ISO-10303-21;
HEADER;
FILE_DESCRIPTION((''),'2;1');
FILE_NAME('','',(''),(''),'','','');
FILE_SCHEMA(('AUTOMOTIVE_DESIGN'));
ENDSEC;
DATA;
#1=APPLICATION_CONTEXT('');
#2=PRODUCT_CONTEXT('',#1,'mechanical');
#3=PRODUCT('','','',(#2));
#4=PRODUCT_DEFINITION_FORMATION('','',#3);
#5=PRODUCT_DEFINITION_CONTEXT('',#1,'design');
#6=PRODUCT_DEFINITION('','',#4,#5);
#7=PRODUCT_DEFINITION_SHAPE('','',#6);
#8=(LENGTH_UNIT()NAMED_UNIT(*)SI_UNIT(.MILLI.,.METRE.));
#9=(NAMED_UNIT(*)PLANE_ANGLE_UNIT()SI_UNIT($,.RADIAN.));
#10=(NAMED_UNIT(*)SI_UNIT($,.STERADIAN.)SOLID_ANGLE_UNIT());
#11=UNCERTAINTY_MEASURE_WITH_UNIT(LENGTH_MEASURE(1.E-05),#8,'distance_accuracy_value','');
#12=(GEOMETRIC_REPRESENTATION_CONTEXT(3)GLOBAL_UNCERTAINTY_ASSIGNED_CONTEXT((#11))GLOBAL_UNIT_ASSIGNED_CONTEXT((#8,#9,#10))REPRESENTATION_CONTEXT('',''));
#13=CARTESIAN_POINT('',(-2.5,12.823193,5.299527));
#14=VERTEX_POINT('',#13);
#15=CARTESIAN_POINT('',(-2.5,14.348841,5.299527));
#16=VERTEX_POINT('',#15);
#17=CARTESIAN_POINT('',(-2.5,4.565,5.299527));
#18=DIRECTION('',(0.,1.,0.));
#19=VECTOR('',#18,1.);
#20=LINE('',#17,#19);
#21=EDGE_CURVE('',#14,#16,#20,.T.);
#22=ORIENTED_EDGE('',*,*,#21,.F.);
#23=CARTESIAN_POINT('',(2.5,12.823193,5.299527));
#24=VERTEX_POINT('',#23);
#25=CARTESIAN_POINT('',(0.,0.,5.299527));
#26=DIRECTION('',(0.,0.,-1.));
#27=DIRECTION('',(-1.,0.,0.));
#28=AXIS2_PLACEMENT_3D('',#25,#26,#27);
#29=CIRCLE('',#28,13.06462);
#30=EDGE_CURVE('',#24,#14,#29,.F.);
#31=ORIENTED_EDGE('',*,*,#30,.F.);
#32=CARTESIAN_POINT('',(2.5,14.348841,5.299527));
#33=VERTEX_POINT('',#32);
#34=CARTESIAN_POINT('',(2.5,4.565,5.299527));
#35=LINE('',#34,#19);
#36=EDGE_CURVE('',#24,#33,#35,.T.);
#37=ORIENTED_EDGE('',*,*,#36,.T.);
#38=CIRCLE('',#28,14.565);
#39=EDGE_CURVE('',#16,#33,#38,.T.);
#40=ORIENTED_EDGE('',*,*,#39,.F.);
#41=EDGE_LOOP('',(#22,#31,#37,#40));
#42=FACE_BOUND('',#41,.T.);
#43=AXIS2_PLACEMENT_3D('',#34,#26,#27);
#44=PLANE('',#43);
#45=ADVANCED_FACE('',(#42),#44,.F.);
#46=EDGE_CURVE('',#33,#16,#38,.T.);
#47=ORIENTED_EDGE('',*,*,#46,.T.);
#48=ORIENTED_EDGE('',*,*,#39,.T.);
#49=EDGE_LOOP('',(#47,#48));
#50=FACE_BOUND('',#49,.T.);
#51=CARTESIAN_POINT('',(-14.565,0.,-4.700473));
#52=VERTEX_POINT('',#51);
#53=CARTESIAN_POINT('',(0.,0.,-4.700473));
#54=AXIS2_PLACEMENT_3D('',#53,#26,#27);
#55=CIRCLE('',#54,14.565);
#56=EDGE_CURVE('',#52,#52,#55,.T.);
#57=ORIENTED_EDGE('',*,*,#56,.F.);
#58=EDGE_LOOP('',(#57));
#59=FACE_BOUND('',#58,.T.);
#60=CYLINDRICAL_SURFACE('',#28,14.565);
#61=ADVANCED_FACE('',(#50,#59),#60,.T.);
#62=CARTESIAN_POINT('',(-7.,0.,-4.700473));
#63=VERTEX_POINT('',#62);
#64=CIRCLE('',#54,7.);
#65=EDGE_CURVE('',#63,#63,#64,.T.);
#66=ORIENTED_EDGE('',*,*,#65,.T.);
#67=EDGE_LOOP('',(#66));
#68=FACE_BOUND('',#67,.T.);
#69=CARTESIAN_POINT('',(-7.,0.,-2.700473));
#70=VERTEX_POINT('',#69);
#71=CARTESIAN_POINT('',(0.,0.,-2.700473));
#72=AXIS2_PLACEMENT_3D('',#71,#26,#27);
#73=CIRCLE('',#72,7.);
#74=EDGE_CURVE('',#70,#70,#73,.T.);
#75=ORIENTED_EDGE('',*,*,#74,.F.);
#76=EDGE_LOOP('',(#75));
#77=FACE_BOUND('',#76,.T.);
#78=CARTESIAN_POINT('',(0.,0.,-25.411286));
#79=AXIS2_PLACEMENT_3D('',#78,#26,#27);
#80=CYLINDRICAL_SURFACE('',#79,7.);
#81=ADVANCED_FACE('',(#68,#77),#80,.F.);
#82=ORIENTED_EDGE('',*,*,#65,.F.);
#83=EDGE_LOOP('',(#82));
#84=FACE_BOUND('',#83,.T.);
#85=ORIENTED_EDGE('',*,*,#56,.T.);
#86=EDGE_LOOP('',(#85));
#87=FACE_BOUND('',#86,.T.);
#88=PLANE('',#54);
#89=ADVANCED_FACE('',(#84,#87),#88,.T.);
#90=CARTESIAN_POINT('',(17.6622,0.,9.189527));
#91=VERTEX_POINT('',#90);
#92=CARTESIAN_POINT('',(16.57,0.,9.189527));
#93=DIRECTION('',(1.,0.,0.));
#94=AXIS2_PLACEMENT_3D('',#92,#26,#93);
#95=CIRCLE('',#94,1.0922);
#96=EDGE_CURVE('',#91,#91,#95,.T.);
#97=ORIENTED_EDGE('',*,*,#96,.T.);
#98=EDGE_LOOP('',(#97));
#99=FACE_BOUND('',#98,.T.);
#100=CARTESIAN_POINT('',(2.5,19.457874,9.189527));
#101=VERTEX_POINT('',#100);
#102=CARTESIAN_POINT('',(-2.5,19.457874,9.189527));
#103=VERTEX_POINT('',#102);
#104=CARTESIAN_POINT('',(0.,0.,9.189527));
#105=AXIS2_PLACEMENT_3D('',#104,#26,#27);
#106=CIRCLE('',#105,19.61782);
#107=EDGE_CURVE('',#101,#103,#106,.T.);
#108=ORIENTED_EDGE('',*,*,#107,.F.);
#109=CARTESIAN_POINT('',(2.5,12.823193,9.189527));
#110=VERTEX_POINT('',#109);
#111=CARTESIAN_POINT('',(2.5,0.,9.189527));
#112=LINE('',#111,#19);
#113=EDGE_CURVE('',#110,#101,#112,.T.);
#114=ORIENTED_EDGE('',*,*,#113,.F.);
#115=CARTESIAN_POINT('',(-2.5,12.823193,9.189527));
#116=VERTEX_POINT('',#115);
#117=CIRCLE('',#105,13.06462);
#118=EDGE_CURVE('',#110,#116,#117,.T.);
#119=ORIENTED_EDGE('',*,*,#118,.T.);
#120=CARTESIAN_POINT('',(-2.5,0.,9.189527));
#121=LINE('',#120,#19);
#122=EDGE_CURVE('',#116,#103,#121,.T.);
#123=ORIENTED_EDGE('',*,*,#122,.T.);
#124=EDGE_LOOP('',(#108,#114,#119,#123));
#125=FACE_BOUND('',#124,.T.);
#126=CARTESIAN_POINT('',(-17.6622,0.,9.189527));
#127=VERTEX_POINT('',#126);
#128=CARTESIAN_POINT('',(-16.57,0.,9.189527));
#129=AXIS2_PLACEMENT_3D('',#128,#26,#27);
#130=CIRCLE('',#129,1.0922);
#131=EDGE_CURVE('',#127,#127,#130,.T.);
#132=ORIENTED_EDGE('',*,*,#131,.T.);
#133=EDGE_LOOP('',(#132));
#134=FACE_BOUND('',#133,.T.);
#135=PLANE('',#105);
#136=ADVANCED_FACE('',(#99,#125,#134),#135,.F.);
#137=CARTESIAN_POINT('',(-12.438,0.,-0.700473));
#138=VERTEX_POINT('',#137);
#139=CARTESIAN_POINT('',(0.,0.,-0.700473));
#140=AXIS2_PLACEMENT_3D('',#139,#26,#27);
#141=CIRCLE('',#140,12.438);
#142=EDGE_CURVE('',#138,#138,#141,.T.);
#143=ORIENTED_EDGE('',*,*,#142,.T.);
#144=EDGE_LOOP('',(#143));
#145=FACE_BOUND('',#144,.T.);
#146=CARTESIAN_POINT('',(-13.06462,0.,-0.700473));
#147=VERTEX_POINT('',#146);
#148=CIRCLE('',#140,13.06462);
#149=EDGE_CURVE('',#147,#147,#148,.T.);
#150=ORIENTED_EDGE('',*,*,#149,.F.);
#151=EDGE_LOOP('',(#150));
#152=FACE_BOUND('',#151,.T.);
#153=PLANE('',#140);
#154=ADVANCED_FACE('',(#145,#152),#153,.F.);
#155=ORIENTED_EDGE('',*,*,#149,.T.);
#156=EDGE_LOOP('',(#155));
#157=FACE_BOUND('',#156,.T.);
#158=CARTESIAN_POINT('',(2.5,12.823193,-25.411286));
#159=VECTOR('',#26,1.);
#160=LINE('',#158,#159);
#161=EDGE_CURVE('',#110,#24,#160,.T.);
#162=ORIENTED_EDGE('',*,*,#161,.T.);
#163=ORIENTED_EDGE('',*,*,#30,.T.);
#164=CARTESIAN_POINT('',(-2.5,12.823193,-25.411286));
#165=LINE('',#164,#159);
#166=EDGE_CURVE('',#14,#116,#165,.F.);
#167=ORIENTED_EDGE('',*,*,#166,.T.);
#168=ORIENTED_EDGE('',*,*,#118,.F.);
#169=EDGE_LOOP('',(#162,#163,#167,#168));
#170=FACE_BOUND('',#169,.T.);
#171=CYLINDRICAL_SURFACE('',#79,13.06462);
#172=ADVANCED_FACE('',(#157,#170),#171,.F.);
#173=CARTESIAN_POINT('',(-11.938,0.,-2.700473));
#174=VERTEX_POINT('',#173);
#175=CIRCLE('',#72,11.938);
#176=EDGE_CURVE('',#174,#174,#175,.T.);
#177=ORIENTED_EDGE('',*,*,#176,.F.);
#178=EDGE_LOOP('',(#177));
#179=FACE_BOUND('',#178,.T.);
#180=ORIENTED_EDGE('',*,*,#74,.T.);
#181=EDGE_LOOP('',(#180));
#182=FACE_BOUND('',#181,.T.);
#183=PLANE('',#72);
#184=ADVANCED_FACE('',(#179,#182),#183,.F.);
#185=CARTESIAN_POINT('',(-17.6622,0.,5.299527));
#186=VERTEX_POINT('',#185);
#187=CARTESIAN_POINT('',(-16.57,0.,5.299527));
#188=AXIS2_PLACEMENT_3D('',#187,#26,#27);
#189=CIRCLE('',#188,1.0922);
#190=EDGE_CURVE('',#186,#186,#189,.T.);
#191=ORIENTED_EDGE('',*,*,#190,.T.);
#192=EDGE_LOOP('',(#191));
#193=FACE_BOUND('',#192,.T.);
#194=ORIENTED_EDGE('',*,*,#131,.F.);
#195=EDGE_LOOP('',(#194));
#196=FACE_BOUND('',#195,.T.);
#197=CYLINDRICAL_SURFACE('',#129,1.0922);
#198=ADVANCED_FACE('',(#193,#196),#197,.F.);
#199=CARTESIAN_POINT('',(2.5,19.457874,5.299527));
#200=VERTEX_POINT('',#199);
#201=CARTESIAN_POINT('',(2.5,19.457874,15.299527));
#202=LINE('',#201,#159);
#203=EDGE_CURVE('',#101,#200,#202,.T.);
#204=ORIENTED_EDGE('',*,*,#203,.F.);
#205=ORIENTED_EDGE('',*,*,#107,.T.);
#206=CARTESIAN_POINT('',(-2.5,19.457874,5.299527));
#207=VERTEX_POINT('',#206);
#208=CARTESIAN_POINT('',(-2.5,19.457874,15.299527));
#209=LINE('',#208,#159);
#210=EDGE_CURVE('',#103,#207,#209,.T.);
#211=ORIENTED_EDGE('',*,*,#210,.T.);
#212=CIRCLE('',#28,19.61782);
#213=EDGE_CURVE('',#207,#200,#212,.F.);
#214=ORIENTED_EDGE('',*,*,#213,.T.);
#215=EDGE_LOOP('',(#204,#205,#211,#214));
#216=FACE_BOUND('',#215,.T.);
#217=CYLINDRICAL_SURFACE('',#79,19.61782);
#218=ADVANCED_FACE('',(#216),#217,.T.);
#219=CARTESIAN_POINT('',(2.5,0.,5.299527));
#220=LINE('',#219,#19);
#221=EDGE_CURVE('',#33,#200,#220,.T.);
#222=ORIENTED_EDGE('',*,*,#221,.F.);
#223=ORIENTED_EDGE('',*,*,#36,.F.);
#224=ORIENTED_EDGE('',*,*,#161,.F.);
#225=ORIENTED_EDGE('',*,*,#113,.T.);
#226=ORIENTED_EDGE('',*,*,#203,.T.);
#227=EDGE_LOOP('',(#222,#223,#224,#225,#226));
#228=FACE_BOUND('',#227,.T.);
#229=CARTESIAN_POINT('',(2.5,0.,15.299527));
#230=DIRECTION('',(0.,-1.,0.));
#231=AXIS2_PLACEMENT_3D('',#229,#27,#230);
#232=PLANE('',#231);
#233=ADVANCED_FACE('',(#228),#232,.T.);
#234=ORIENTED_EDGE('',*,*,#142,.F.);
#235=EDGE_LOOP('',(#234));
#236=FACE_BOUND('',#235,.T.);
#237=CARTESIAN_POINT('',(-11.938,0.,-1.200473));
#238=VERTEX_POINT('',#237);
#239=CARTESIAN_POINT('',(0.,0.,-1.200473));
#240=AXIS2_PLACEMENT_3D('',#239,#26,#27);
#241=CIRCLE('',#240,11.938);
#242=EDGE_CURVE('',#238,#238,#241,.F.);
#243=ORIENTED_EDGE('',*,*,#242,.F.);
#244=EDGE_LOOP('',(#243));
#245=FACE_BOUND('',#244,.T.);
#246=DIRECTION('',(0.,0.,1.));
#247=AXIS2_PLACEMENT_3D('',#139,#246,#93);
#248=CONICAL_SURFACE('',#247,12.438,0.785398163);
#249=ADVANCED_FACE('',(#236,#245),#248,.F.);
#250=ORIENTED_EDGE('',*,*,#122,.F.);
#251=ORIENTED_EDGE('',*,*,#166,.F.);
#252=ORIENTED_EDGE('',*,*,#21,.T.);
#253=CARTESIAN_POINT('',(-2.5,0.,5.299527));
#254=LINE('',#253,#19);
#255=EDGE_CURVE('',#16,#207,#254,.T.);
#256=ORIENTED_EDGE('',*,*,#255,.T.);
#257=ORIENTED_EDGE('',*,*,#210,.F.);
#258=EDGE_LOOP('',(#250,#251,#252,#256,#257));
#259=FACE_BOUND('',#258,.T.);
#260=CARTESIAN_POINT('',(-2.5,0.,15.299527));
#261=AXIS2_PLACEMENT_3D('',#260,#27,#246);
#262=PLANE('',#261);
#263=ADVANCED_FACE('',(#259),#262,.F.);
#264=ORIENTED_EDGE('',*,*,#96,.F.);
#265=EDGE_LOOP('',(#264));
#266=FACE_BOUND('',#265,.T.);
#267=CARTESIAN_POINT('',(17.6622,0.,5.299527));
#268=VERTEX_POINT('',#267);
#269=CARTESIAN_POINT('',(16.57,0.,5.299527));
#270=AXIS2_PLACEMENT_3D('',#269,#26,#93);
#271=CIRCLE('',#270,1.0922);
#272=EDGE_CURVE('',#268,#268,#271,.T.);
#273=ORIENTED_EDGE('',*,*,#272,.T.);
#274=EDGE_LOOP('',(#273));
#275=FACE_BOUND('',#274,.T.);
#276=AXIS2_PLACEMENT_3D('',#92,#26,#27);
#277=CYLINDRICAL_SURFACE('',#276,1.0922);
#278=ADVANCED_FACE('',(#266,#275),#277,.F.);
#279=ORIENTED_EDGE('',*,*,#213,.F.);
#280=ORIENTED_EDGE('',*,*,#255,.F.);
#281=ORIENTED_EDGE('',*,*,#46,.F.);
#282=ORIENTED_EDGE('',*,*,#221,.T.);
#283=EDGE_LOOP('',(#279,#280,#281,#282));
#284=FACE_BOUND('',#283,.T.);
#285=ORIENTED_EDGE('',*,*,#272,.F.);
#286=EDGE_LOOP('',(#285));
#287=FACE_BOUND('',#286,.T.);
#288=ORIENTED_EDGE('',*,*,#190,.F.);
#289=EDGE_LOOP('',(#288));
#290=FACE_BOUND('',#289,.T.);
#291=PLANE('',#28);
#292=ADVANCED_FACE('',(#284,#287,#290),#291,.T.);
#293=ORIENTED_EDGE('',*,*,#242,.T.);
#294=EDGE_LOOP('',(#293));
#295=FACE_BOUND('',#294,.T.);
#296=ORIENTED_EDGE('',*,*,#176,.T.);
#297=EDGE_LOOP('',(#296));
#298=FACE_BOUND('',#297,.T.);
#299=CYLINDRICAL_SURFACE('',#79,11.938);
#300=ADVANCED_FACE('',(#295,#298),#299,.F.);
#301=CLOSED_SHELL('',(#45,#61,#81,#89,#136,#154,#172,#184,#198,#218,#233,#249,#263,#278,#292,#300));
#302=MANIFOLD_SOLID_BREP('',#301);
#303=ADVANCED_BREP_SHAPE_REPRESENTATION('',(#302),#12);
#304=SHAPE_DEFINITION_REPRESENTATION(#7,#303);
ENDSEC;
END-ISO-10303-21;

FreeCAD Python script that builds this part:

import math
import FreeCAD as App
import Part
import Sketcher


def edges_at(feature, points):
    """Names of the edges that pass closest to the given points."""
    edges = feature.Shape.Edges
    near = lambda p: min(range(len(edges)), key=lambda i: edges[i].distToShape(Part.Vertex(*p))[0])
    return sorted({f"Edge{near(p) + 1}" for p in points})

doc = App.newDocument("Part")
body = doc.addObject("PartDesign::Body", "Body")

sketch1 = body.newObject("Sketcher::SketchObject", "Sketch")
sketch1.AttachmentSupport = (doc.getObject("XZ_Plane"), [""])
sketch1.MapMode = "FlatFace"
sketch1.addGeometry([
    Part.LineSegment(App.Vector(-19.6, -4.7, 0), App.Vector(-19.6, 9.2, 0)),
    Part.LineSegment(App.Vector(-19.6, 9.2, 0), App.Vector(-13.1, 9.2, 0)),
    Part.LineSegment(App.Vector(-13.1, 9.2, 0), App.Vector(-13.1, -0.7, 0)),
    Part.LineSegment(App.Vector(-13.1, -0.7, 0), App.Vector(-11.9, -0.7, 0)),
    Part.LineSegment(App.Vector(-11.9, -0.7, 0), App.Vector(-11.9, -2.7, 0)),
    Part.LineSegment(App.Vector(-11.9, -2.7, 0), App.Vector(-7, -2.7, 0)),
    Part.LineSegment(App.Vector(-7, -2.7, 0), App.Vector(-7, -4.7, 0)),
    Part.LineSegment(App.Vector(-7, -4.7, 0), App.Vector(-19.6, -4.7, 0)),
], False)
sketch1.addConstraint([
    Sketcher.Constraint("Coincident", 0, 2, 1, 1),
    Sketcher.Constraint("Coincident", 1, 2, 2, 1),
    Sketcher.Constraint("Coincident", 2, 2, 3, 1),
    Sketcher.Constraint("Coincident", 3, 2, 4, 1),
    Sketcher.Constraint("Coincident", 4, 2, 5, 1),
    Sketcher.Constraint("Coincident", 5, 2, 6, 1),
    Sketcher.Constraint("Coincident", 6, 2, 7, 1),
    Sketcher.Constraint("Coincident", 7, 2, 0, 1),
    Sketcher.Constraint("Vertical", 0),
    Sketcher.Constraint("Horizontal", 1),
    Sketcher.Constraint("Vertical", 2),
    Sketcher.Constraint("Horizontal", 3),
    Sketcher.Constraint("Vertical", 4),
    Sketcher.Constraint("Horizontal", 5),
    Sketcher.Constraint("Vertical", 6),
    Sketcher.Constraint("Horizontal", 7),
    Sketcher.Constraint("Equal", 4, 6),
    Sketcher.Constraint("DistanceY", 4, 2, 4, 1, 2.0),
    Sketcher.Constraint("DistanceX", 5, 2, -1, 1, 7.0),
    Sketcher.Constraint("DistanceY", 0, 1, 0, 2, 13.89),
    Sketcher.Constraint("DistanceX", 5, 1, 5, 2, 4.938),
    Sketcher.Constraint("DistanceX", 1, 1, 1, 2, 6.5532),
    Sketcher.Constraint("DistanceX", 3, 1, 3, 2, 1.12662),
    Sketcher.Constraint("DistanceY", -1, 1, 0, 2, 9.189527),
])
revolution = body.newObject("PartDesign::Revolution", "Revolution")
revolution.Profile = sketch1
revolution.ReferenceAxis = (sketch1, ["V_Axis"])
revolution.Angle = 360

sketch2 = body.newObject("Sketcher::SketchObject", "Sketch001")
sketch2.AttachmentSupport = (doc.getObject("XY_Plane"), [""])
sketch2.MapMode = "FlatFace"
sketch2.AttachmentOffset = App.Placement(App.Vector(0, 0, -4.700473), App.Rotation())
sketch2.addGeometry([
    Part.Circle(App.Vector(0, 0, 0), App.Vector(0, 0, 1), 27),
    Part.Circle(App.Vector(0, 0, 0), App.Vector(0, 0, 1), 15),
], False)
sketch2.addConstraint([
    Sketcher.Constraint("Coincident", 0, 3, -1, 1),
    Sketcher.Constraint("Coincident", 1, 3, -1, 1),
    Sketcher.Constraint("Diameter", 1, 29.13),
    Sketcher.Constraint("Diameter", 0, 53.305533),
])
pocket1 = body.newObject("PartDesign::Pocket", "Pocket")
pocket1.Profile = sketch2
pocket1.Length = 10
pocket1.Reversed = True

sketch3 = body.newObject("Sketcher::SketchObject", "Sketch002")
sketch3.AttachmentSupport = (doc.getObject("XY_Plane"), [""])
sketch3.MapMode = "FlatFace"
sketch3.AttachmentOffset = App.Placement(App.Vector(0, 0, 5.299527), App.Rotation())
sketch3.addGeometry([
    Part.Circle(App.Vector(-16.6, 0, 0), App.Vector(0, 0, 1), 1.1),
    Part.Circle(App.Vector(16.6, 0, 0), App.Vector(0, 0, 1), 1.1),
], False)
sketch3.addConstraint([
    Sketcher.Constraint("Equal", 0, 1),
    Sketcher.Constraint("Symmetric", 0, 3, 1, 3, -1, 1),
    Sketcher.Constraint("PointOnObject", 0, 3, -1),
    Sketcher.Constraint("Diameter", 0, 2.1844),
    Sketcher.Constraint("DistanceX", 0, 3, -1, 1, 16.57),
])
pocket2 = body.newObject("PartDesign::Pocket", "Pocket001")
pocket2.Profile = sketch3
pocket2.Type = "ThroughAll"
pocket2.Reversed = True
doc.recompute()

chamfer = body.newObject("PartDesign::Chamfer", "Chamfer")
chamfer.Base = (pocket2, edges_at(pocket2, [(11.938, 0, -0.7)]))
chamfer.Size = 0.5

sketch4 = body.newObject("Sketcher::SketchObject", "Sketch003")
sketch4.AttachmentSupport = (doc.getObject("XY_Plane"), [""])
sketch4.MapMode = "FlatFace"
sketch4.AttachmentOffset = App.Placement(App.Vector(0, 0, 5.299527), App.Rotation())
sketch4.addGeometry([
    Part.LineSegment(App.Vector(-2.5, 14.6, 0), App.Vector(-2.5, 19.5, 0)),
    Part.ArcOfCircle(Part.Circle(App.Vector(0, 0, 0), App.Vector(0, 0, 1), 19.6), math.radians(90), math.radians(97.32)),
    Part.ArcOfCircle(Part.Circle(App.Vector(0, 0, 0), App.Vector(0, 0, 1), 19.6), math.radians(82.68), math.radians(90)),
    Part.LineSegment(App.Vector(2.5, 19.5, 0), App.Vector(2.5, 14.6, 0)),
    Part.LineSegment(App.Vector(2.5, 14.6, 0), App.Vector(-2.5, 14.6, 0)),
], False)
sketch4.addConstraint([
    Sketcher.Constraint("Coincident", 0, 2, 1, 2),
    Sketcher.Constraint("Tangent", 1, 1, 2, 2),
    Sketcher.Constraint("Coincident", 2, 1, 3, 1),
    Sketcher.Constraint("Coincident", 3, 2, 4, 1),
    Sketcher.Constraint("Coincident", 4, 2, 0, 1),
    Sketcher.Constraint("Vertical", 0),
    Sketcher.Constraint("Vertical", 3),
    Sketcher.Constraint("Horizontal", 4),
    Sketcher.Constraint("Coincident", 1, 3, -1, 1),
    Sketcher.Constraint("Equal", 1, 2),
    Sketcher.Constraint("PointOnObject", 1, 1, -2),
    Sketcher.Constraint("Horizontal", 0, 2, 2, 1),
    Sketcher.Constraint("DistanceX", 4, 2, 4, 1, 5.0),
    Sketcher.Constraint("Radius", 1, 19.617819),
    Sketcher.Constraint("DistanceY", -1, 1, 3, 2, 14.565),
])
pocket3 = body.newObject("PartDesign::Pocket", "Pocket002")
pocket3.Profile = sketch4
pocket3.Length = 10
pocket3.Reversed = True

sketch5 = body.newObject("Sketcher::SketchObject", "Sketch004")
sketch5.AttachmentSupport = (doc.getObject("XZ_Plane"), [""])
sketch5.MapMode = "FlatFace"
sketch5.AttachmentOffset = App.Placement(App.Vector(0, 0, -14.565), App.Rotation())
sketch5.addGeometry([
    Part.LineSegment(App.Vector(-2.5, 5.3, 0), App.Vector(-2.5, 9.2, 0)),
    Part.LineSegment(App.Vector(-2.5, 9.2, 0), App.Vector(2.5, 9.2, 0)),
    Part.LineSegment(App.Vector(2.5, 9.2, 0), App.Vector(2.5, 5.3, 0)),
    Part.LineSegment(App.Vector(2.5, 5.3, 0), App.Vector(-2.5, 5.3, 0)),
], False)
sketch5.addConstraint([
    Sketcher.Constraint("Coincident", 0, 2, 1, 1),
    Sketcher.Constraint("Coincident", 1, 2, 2, 1),
    Sketcher.Constraint("Coincident", 2, 2, 3, 1),
    Sketcher.Constraint("Coincident", 3, 2, 0, 1),
    Sketcher.Constraint("Vertical", 0),
    Sketcher.Constraint("Horizontal", 1),
    Sketcher.Constraint("Vertical", 2),
    Sketcher.Constraint("Horizontal", 3),
    Sketcher.Constraint("DistanceX", 1, 1, 1, 2, 5.0),
    Sketcher.Constraint("DistanceY", 0, 1, 0, 2, 3.89),
    Sketcher.Constraint("DistanceX", 0, 2, -1, 1, 2.5),
    Sketcher.Constraint("DistanceY", -1, 1, 0, 2, 9.189527),
])
pocket4 = body.newObject("PartDesign::Pocket", "Pocket003")
pocket4.Profile = sketch5
pocket4.Length = 10
pocket4.Reversed = True

doc.recompute()
